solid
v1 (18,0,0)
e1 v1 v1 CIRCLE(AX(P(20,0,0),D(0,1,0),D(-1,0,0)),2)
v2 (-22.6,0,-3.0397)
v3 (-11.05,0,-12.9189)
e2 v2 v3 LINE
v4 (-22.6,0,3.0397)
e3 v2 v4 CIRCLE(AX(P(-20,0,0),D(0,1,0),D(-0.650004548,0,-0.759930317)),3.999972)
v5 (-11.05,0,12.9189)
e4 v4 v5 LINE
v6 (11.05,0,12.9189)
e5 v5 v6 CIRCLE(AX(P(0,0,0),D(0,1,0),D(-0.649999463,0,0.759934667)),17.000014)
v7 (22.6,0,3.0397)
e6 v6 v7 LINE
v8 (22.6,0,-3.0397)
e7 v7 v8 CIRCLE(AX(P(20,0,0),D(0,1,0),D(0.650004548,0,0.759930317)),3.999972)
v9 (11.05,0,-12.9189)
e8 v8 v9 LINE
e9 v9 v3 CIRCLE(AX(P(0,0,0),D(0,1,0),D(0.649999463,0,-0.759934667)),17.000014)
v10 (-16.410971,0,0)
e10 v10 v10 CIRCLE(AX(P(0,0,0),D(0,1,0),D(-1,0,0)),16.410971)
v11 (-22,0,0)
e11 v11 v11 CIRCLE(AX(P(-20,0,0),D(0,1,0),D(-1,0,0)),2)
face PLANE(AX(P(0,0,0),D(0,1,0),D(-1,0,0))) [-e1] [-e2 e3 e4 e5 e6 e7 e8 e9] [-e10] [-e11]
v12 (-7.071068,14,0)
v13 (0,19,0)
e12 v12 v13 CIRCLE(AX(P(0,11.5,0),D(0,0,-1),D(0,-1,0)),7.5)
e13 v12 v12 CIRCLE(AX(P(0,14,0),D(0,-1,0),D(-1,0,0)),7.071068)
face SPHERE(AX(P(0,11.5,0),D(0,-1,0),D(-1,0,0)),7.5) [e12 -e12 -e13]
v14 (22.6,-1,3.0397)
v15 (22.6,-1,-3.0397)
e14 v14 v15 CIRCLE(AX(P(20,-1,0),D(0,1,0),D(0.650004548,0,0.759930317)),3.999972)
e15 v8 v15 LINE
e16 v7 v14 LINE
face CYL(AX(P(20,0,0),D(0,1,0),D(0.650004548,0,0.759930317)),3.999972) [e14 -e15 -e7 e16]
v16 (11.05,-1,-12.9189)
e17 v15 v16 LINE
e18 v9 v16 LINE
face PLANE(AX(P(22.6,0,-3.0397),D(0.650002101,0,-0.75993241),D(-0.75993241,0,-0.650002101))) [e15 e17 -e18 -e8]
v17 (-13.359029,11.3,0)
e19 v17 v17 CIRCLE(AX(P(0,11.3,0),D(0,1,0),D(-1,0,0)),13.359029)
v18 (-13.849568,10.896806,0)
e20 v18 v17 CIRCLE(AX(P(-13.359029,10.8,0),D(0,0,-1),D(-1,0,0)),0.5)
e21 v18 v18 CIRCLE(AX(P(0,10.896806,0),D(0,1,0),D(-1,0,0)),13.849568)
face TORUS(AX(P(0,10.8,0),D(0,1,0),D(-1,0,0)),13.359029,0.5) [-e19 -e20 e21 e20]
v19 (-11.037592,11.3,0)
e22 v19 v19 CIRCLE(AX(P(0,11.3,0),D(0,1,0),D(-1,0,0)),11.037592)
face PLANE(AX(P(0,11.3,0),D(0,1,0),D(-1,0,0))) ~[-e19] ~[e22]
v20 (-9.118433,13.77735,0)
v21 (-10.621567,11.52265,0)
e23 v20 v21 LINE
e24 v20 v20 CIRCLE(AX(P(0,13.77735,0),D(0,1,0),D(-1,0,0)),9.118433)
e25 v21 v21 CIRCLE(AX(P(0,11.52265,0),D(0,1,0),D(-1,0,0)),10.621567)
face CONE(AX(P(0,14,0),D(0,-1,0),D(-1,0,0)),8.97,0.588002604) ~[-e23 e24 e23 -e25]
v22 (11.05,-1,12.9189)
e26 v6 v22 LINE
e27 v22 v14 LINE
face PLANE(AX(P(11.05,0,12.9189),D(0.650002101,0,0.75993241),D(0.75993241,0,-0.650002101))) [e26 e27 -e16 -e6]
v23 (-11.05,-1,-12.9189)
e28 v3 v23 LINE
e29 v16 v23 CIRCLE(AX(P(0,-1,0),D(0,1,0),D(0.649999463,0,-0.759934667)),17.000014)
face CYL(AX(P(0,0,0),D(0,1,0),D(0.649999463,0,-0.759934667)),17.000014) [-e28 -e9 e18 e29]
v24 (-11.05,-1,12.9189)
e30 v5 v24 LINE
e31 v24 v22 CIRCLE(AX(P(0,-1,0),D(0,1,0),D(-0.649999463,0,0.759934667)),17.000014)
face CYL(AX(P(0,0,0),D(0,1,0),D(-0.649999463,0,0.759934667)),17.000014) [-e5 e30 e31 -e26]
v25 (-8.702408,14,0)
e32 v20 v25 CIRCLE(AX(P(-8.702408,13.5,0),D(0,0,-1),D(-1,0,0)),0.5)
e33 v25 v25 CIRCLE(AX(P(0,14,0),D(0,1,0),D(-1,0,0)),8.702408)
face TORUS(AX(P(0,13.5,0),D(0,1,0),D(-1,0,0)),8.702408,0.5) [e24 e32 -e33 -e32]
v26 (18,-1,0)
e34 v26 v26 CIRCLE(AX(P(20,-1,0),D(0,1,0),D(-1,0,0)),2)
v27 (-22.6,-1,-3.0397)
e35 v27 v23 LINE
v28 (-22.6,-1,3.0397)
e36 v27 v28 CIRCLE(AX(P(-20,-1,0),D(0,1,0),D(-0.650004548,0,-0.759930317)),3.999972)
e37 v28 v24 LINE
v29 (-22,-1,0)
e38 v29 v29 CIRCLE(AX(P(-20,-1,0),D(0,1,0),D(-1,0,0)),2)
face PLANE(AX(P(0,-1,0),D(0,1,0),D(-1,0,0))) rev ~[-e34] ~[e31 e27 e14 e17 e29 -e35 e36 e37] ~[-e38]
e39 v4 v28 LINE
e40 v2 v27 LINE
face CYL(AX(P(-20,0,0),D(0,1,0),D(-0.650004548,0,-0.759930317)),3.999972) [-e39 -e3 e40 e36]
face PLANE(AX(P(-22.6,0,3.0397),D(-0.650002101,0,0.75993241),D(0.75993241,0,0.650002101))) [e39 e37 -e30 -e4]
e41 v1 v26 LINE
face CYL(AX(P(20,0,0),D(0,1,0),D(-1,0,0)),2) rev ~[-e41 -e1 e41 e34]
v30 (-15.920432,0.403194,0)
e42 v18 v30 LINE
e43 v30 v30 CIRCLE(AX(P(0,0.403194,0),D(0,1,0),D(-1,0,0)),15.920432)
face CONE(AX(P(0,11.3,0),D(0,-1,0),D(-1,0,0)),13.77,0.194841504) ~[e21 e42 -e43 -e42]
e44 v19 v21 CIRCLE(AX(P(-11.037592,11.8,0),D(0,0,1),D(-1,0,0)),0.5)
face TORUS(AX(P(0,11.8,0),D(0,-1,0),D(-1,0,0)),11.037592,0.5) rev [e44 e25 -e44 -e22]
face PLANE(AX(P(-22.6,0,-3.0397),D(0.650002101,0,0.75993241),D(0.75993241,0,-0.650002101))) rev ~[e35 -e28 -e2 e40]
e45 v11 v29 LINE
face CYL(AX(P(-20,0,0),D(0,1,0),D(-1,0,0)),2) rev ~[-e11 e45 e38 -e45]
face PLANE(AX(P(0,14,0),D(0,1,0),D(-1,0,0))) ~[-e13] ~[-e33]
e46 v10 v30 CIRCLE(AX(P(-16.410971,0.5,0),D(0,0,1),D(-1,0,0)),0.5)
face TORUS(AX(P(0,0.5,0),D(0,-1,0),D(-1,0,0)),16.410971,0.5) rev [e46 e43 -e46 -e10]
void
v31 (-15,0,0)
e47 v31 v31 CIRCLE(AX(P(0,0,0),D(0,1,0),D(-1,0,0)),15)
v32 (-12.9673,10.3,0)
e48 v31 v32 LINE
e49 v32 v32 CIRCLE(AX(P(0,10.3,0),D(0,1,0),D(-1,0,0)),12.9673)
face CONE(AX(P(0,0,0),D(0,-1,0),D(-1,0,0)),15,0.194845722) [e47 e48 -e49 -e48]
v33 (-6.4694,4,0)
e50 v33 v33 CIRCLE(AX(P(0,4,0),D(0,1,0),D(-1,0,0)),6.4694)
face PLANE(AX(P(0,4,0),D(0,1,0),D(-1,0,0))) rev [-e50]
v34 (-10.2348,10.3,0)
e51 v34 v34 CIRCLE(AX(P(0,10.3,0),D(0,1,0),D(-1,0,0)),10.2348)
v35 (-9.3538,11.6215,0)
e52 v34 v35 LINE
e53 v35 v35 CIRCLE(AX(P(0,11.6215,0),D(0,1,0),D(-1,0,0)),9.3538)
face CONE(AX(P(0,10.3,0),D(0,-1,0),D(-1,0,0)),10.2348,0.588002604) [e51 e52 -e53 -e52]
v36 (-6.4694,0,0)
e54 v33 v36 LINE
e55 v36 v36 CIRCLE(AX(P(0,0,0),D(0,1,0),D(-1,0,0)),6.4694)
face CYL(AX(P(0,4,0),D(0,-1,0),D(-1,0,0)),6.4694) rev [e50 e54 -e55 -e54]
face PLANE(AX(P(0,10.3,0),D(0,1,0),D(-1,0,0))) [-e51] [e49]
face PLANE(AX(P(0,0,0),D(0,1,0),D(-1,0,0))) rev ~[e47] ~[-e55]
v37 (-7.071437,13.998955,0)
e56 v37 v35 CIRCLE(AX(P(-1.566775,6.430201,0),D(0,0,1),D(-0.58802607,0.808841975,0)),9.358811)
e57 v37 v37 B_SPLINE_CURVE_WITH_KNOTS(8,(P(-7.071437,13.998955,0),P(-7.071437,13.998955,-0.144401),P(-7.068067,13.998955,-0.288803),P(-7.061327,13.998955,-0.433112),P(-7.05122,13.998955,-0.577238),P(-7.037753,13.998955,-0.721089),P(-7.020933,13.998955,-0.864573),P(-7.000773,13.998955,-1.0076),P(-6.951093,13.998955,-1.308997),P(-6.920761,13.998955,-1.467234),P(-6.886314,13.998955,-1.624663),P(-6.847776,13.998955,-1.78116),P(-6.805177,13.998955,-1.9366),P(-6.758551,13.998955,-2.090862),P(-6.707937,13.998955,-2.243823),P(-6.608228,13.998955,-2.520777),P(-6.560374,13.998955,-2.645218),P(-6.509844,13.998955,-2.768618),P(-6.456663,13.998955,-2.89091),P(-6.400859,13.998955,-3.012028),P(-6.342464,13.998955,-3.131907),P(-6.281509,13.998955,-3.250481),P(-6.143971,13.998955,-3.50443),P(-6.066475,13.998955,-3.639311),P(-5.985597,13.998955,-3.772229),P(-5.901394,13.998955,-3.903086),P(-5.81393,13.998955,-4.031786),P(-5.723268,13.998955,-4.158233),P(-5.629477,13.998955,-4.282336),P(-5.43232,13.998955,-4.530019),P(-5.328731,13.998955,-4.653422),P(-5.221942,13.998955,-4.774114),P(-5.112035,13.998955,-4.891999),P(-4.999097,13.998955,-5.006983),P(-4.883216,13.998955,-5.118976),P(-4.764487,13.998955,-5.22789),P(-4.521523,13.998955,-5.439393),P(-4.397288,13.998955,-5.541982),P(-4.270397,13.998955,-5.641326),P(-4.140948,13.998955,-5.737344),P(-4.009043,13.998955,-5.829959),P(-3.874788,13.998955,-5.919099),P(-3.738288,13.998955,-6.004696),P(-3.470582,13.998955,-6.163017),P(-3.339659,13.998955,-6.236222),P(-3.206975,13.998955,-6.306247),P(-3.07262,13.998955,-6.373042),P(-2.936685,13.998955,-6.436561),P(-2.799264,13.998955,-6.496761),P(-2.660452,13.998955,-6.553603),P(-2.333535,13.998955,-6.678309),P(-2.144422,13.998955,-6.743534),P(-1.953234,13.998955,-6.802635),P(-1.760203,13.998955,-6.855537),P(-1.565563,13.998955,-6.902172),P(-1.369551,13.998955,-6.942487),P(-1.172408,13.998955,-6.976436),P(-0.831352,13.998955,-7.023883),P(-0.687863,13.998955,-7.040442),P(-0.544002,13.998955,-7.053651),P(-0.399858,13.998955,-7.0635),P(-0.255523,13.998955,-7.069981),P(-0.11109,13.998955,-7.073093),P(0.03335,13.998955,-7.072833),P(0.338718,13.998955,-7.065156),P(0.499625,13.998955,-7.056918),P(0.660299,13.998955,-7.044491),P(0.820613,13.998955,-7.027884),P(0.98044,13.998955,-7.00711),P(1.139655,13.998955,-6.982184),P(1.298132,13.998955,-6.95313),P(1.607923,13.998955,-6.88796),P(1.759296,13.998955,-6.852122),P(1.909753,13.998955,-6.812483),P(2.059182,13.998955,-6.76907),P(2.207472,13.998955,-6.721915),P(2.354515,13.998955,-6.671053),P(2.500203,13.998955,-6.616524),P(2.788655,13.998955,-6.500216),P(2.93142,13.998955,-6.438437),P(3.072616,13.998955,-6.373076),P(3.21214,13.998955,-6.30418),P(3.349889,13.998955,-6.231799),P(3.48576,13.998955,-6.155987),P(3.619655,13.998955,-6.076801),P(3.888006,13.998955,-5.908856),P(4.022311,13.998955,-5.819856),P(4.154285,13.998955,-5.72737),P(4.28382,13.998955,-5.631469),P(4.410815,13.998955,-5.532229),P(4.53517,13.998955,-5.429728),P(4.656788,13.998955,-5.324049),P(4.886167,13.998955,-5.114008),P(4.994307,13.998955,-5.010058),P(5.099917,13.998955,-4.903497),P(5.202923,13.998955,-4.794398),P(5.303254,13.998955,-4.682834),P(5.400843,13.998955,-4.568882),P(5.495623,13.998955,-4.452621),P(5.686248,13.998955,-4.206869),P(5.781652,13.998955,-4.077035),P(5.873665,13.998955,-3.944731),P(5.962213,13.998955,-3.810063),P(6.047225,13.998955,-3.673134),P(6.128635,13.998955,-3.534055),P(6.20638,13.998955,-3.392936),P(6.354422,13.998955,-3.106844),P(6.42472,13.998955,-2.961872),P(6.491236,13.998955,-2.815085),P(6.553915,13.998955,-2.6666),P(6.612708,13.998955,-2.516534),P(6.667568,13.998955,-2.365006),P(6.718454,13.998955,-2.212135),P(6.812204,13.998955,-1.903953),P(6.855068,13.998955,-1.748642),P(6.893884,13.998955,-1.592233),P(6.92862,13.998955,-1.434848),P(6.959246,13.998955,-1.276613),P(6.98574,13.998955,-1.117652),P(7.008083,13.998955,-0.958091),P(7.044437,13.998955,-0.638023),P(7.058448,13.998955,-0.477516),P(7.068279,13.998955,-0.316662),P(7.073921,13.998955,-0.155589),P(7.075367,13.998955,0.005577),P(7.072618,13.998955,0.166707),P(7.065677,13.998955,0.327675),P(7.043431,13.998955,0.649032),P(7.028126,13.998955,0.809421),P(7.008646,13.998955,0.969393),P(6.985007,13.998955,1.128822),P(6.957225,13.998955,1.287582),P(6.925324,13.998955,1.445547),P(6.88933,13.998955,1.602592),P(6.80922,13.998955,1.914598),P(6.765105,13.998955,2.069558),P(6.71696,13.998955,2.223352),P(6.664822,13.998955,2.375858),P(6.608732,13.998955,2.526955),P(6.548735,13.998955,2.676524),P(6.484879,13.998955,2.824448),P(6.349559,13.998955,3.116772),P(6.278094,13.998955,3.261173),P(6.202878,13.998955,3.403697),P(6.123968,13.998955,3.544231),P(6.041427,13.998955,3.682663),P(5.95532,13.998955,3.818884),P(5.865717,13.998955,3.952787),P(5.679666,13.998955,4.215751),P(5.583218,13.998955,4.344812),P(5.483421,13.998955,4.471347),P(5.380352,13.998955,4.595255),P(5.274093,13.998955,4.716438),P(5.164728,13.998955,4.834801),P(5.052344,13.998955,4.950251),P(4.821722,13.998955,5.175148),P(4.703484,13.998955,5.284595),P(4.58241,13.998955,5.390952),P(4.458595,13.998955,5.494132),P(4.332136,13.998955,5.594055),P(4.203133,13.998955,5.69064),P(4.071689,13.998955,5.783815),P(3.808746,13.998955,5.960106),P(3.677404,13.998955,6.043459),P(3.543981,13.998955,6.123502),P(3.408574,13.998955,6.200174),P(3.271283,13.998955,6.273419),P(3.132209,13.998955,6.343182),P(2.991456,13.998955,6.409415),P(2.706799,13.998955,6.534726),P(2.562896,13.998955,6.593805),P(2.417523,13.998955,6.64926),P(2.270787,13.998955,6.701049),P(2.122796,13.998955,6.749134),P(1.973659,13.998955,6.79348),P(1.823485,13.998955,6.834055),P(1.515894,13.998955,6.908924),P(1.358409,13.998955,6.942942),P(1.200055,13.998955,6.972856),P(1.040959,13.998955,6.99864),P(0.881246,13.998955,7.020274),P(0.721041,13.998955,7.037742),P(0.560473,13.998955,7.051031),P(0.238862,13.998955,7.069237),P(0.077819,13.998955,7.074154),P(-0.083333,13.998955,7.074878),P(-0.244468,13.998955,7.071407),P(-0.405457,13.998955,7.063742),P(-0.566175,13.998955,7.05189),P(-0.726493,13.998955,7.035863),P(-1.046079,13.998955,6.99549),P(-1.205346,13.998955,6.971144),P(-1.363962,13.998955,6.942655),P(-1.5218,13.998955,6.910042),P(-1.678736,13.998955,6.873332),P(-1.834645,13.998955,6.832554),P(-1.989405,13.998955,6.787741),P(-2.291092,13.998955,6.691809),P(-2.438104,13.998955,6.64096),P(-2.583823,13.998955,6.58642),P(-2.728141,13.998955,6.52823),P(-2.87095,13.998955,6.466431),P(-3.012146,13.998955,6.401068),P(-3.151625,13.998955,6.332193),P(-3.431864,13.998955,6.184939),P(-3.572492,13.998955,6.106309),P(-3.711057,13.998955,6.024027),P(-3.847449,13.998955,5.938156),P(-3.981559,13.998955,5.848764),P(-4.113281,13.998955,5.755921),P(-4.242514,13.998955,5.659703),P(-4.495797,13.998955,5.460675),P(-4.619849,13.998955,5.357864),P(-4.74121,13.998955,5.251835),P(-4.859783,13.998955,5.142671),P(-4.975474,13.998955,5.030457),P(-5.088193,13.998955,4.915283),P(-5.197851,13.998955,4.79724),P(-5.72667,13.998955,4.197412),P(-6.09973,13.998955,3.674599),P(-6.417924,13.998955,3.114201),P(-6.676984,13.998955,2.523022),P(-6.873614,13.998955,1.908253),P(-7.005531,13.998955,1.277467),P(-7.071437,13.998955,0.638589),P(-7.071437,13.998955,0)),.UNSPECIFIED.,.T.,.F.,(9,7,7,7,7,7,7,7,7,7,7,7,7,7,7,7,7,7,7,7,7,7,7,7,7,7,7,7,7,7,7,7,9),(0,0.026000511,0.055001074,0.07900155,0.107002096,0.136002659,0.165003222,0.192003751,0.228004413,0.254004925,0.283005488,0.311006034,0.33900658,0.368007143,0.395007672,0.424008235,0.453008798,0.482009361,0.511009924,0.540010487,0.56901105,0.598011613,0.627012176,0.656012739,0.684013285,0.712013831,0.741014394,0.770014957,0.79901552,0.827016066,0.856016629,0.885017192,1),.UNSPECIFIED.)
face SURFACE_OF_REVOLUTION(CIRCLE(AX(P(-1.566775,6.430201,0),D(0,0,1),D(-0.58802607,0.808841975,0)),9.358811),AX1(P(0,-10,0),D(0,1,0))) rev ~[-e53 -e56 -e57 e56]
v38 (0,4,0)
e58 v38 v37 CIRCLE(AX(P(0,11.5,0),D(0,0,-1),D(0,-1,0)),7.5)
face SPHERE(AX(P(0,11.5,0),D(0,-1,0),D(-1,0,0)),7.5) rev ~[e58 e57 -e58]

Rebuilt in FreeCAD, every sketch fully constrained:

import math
import FreeCAD as App
import Part
import Sketcher


def edges_at(feature, points):
    """Names of the edges that pass closest to the given points."""
    edges = feature.Shape.Edges
    near = lambda p: min(range(len(edges)), key=lambda i: edges[i].distToShape(Part.Vertex(*p))[0])
    return sorted({f"Edge{near(p) + 1}" for p in points})

doc = App.newDocument("Part")
body = doc.addObject("PartDesign::Body", "Body")
body.AllowCompound = True

sketch1 = doc.addObject("Sketcher::SketchObject", "Sketch")
body.addObject(sketch1)
sketch1.AttachmentSupport = (doc.XY_Plane, [""])
sketch1.MapMode = "FlatFace"
sketch1.addGeometry([
    Part.ArcOfCircle(Part.Circle(App.Vector(-1.6, 6.4, 0), App.Vector(0, 0, 1), 9.4), math.radians(126), math.radians(146)),
    Part.LineSegment(App.Vector(-7.1, 14, 0), App.Vector(-9, 14, 0)),
    Part.LineSegment(App.Vector(-9, 14, 0), App.Vector(-10.8, 11.3, 0)),
    Part.LineSegment(App.Vector(-10.8, 11.3, 0), App.Vector(-13.8, 11.3, 0)),
    Part.LineSegment(App.Vector(-13.8, 11.3, 0), App.Vector(-16, 0, 0)),
    Part.LineSegment(App.Vector(-16, 0, 0), App.Vector(-15, 0, 0)),
    Part.LineSegment(App.Vector(-15, 0, 0), App.Vector(-13, 10.3, 0)),
    Part.LineSegment(App.Vector(-13, 10.3, 0), App.Vector(-10.2, 10.3, 0)),
    Part.LineSegment(App.Vector(-10.2, 10.3, 0), App.Vector(-9.4, 11.6, 0)),
    Part.LineSegment(App.Vector(-6.5, 0, 0), App.Vector(0, 0, 0)),
    Part.LineSegment(App.Vector(0, 0, 0), App.Vector(0, 4, 0)),
    Part.LineSegment(App.Vector(0, 4, 0), App.Vector(-6.5, 4, 0)),
    Part.LineSegment(App.Vector(-6.5, 4, 0), App.Vector(-6.5, 0, 0)),
], False)
sketch1.addConstraint([
    Sketcher.Constraint("Coincident", 0, 1, 1, 1),
    Sketcher.Constraint("Coincident", 1, 2, 2, 1),
    Sketcher.Constraint("Coincident", 2, 2, 3, 1),
    Sketcher.Constraint("Coincident", 3, 2, 4, 1),
    Sketcher.Constraint("Coincident", 4, 2, 5, 1),
    Sketcher.Constraint("Coincident", 5, 2, 6, 1),
    Sketcher.Constraint("Coincident", 6, 2, 7, 1),
    Sketcher.Constraint("Coincident", 7, 2, 8, 1),
    Sketcher.Constraint("Tangent", 8, 2, 0, 2),
    Sketcher.Constraint("Coincident", 9, 2, 10, 1),
    Sketcher.Constraint("Coincident", 10, 2, 11, 1),
    Sketcher.Constraint("Coincident", 11, 2, 12, 1),
    Sketcher.Constraint("Coincident", 12, 2, 9, 1),
    Sketcher.Constraint("Horizontal", 1),
    Sketcher.Constraint("Horizontal", 3),
    Sketcher.Constraint("Horizontal", 5),
    Sketcher.Constraint("Horizontal", 7),
    Sketcher.Constraint("Horizontal", 9),
    Sketcher.Constraint("Vertical", 10),
    Sketcher.Constraint("Horizontal", 11),
    Sketcher.Constraint("Vertical", 12),
    Sketcher.Constraint("Coincident", 9, 2, -1, 1),
    Sketcher.Constraint("PointOnObject", 4, 2, -1),
    Sketcher.Constraint("Parallel", 4, 6),
    Sketcher.Constraint("Parallel", 2, 8),
    Sketcher.Constraint("DistanceX", 3, 2, 3, 1, 3.0),
    Sketcher.Constraint("DistanceX", 5, 1, 5, 2, 1.0),
    Sketcher.Constraint("DistanceX", 1, 2, 1, 1, 1.9),
    Sketcher.Constraint("DistanceY", -1, 1, 0, 1, 14.0),
    Sketcher.Constraint("DistanceX", 4, 2, -1, 1, 16.0),
    Sketcher.Constraint("Radius", 0, 9.359),
    Sketcher.Constraint("DistanceY", 6, 2, 3, 2, 1.0),
    Sketcher.Constraint("DistanceY", 10, 2, 0, 1, 10.0),
    Sketcher.Constraint("DistanceX", 2, 2, 1, 2, 1.8),
    Sketcher.Constraint("DistanceY", 2, 2, 1, 2, 2.7),
    Sketcher.Constraint("DistanceX", 0, 1, -1, 1, 7.07),
    Sketcher.Constraint("DistanceX", 9, 1, 9, 2, 6.4694),
    Sketcher.Constraint("DistanceY", -1, 1, 0, 3, 6.43),
])
revolution = doc.addObject("PartDesign::Revolution", "Revolution")
body.addObject(revolution)
revolution.Profile = sketch1
revolution.ReferenceAxis = (sketch1, ["V_Axis"])
revolution.Angle = 360

sketch2 = doc.addObject("Sketcher::SketchObject", "Sketch001")
body.addObject(sketch2)
sketch2.AttachmentSupport = (doc.XZ_Plane, [""])
sketch2.MapMode = "FlatFace"
sketch2.addGeometry([
    Part.LineSegment(App.Vector(-11.1, -12.9, 0), App.Vector(-22.6, -3, 0)),
    Part.ArcOfCircle(Part.Circle(App.Vector(-20, 0, 0), App.Vector(0, 0, 1), 4), math.radians(131), math.radians(229)),
    Part.LineSegment(App.Vector(-22.6, 3, 0), App.Vector(-11.1, 12.9, 0)),
    Part.ArcOfCircle(Part.Circle(App.Vector(0, 0, 0), App.Vector(0, 0, 1), 17), math.radians(49), math.radians(131)),
    Part.LineSegment(App.Vector(11.1, 12.9, 0), App.Vector(22.6, 3, 0)),
    Part.ArcOfCircle(Part.Circle(App.Vector(20, 0, 0), App.Vector(0, 0, 1), 4), math.radians(-49), math.radians(49)),
    Part.LineSegment(App.Vector(22.6, -3, 0), App.Vector(11.1, -12.9, 0)),
    Part.ArcOfCircle(Part.Circle(App.Vector(0, 0, 0), App.Vector(0, 0, 1), 17), math.radians(-131), math.radians(-49)),
    Part.Circle(App.Vector(20, 0, 0), App.Vector(0, 0, 1), 2),
    Part.Circle(App.Vector(-20, 0, 0), App.Vector(0, 0, 1), 2),
], False)
sketch2.addConstraint([
    Sketcher.Constraint("Tangent", 0, 2, 1, 2),
    Sketcher.Constraint("Tangent", 1, 1, 2, 1),
    Sketcher.Constraint("Tangent", 2, 2, 3, 2),
    Sketcher.Constraint("Tangent", 3, 1, 4, 1),
    Sketcher.Constraint("Tangent", 4, 2, 5, 2),
    Sketcher.Constraint("Tangent", 5, 1, 6, 1),
    Sketcher.Constraint("Tangent", 6, 2, 7, 2),
    Sketcher.Constraint("Tangent", 7, 1, 0, 1),
    Sketcher.Constraint("Coincident", 3, 3, -1, 1),
    Sketcher.Constraint("Coincident", 7, 3, -1, 1),
    Sketcher.Constraint("Coincident", 8, 3, 5, 3),
    Sketcher.Constraint("Coincident", 9, 3, 1, 3),
    Sketcher.Constraint("Equal", 1, 5),
    Sketcher.Constraint("Equal", 3, 7),
    Sketcher.Constraint("Equal", 8, 9),
    Sketcher.Constraint("Symmetric", 1, 3, 5, 3, -1, 1),
    Sketcher.Constraint("PointOnObject", 1, 3, -1),
    Sketcher.Constraint("Diameter", 8, 4.0),
    Sketcher.Constraint("Radius", 1, 4.0),
    Sketcher.Constraint("DistanceX", 1, 3, -1, 1, 20.0),
    Sketcher.Constraint("Radius", 3, 17.0),
])
pad1 = doc.addObject("PartDesign::Pad", "Pad")
body.addObject(pad1)
pad1.Profile = sketch2
pad1.Length = 1

sketch3 = doc.addObject("Sketcher::SketchObject", "Sketch002")
body.addObject(sketch3)
sketch3.AttachmentSupport = (doc.XY_Plane, [""])
sketch3.MapMode = "FlatFace"
sketch3.addGeometry([
    Part.ArcOfCircle(Part.Circle(App.Vector(0, 12, 0), App.Vector(0, 0, 1), 8), math.radians(90), math.radians(270)),
    Part.LineSegment(App.Vector(0, 4, 0), App.Vector(0, 19, 0)),
], False)
sketch3.addConstraint([
    Sketcher.Constraint("Coincident", 0, 1, 1, 2),
    Sketcher.Constraint("Coincident", 1, 1, 0, 2),
    Sketcher.Constraint("Vertical", 1),
    Sketcher.Constraint("PointOnObject", 0, 3, -2),
    Sketcher.Constraint("PointOnObject", 0, 1, -2),
    Sketcher.Constraint("Radius", 0, 7.5),
    Sketcher.Constraint("DistanceY", -1, 1, 0, 1, 19.0),
])
revolution2 = doc.addObject("PartDesign::Revolution", "Revolution001")
body.addObject(revolution2)
revolution2.Profile = sketch3
revolution2.ReferenceAxis = (sketch3, ["V_Axis"])
revolution2.Angle = 360
doc.recompute()

fillet = doc.addObject("PartDesign::Fillet", "Fillet")
body.addObject(fillet)
fillet.Base = (revolution2, edges_at(revolution2, [
    (8.97, 14, 0),
    (10.77, 11.3, 0),
    (13.77, 11.3, 0),
    (16, 0, 0),
]))
fillet.Radius = 0.5

doc.recompute()
